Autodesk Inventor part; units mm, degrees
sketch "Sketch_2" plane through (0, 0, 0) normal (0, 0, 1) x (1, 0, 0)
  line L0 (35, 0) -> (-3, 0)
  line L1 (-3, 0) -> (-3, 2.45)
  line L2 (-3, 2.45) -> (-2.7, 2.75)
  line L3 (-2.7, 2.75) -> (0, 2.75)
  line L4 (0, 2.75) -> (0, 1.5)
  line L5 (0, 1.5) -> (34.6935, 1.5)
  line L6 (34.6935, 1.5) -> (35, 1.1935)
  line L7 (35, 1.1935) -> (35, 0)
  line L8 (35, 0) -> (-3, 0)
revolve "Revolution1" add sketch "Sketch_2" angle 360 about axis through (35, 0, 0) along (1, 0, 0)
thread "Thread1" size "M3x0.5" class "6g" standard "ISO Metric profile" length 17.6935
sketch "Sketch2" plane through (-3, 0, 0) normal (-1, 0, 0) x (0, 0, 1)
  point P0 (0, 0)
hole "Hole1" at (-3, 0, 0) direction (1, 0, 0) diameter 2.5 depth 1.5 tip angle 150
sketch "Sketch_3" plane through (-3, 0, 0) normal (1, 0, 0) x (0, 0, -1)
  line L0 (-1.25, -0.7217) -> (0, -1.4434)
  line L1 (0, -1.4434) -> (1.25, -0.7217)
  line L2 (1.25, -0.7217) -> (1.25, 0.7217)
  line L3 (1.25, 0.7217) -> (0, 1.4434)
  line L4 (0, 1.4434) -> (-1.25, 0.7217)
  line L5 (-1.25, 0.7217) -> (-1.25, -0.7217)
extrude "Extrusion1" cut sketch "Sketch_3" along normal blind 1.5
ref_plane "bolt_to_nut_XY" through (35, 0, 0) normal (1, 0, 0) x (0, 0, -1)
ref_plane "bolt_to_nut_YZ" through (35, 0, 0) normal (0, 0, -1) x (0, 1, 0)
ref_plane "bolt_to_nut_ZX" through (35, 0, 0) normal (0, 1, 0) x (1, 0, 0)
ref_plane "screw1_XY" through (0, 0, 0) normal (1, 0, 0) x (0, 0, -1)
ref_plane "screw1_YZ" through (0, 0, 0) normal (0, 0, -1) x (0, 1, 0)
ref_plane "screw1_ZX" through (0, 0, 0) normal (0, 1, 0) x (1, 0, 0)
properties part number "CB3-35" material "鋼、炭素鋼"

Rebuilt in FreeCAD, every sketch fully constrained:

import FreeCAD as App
import Part
import Sketcher

V = App.Vector
Q = App.Units.Quantity

doc = App.newDocument("Part")
body = doc.addObject("PartDesign::Body", "Body")

sketch1 = body.newObject("Sketcher::SketchObject", "Sketch")
sketch1.AttachmentSupport = (doc.getObject("XY_Plane"), [""])
sketch1.MapMode = "FlatFace"
sketch1.addGeometry([
    Part.LineSegment(V(-3, 0, 0), V(35, 0, 0)),
    Part.LineSegment(V(35, 0, 0), V(35, 1.19, 0)),
    Part.LineSegment(V(35, 1.19, 0), V(34.69, 1.5, 0)),
    Part.LineSegment(V(34.69, 1.5, 0), V(0, 1.5, 0)),
    Part.LineSegment(V(0, 1.5, 0), V(0, 2.75, 0)),
    Part.LineSegment(V(0, 2.75, 0), V(-2.7, 2.75, 0)),
    Part.LineSegment(V(-2.7, 2.75, 0), V(-3, 2.45, 0)),
    Part.LineSegment(V(-3, 2.45, 0), V(-3, 0, 0)),
], False)
sketch1.addConstraint([
    Sketcher.Constraint("Coincident", 0, 2, 1, 1),
    Sketcher.Constraint("Coincident", 1, 2, 2, 1),
    Sketcher.Constraint("Coincident", 2, 2, 3, 1),
    Sketcher.Constraint("Coincident", 3, 2, 4, 1),
    Sketcher.Constraint("Coincident", 4, 2, 5, 1),
    Sketcher.Constraint("Coincident", 5, 2, 6, 1),
    Sketcher.Constraint("Coincident", 6, 2, 7, 1),
    Sketcher.Constraint("Coincident", 7, 2, 0, 1),
    Sketcher.Constraint("Horizontal", 0),
    Sketcher.Constraint("Vertical", 1),
    Sketcher.Constraint("Horizontal", 3),
    Sketcher.Constraint("Vertical", 4),
    Sketcher.Constraint("Horizontal", 5),
    Sketcher.Constraint("Vertical", 7),
    Sketcher.Constraint("PointOnObject", 0, 2, -1),
    Sketcher.Constraint("PointOnObject", 3, 2, -2),
    Sketcher.Constraint("Perpendicular", 2, 6),
    Sketcher.Constraint("DistanceX", 0, 1, 0, 2, Q("38 mm")),
    Sketcher.Constraint("Angle", 2, Q("135 deg")),
    Sketcher.Constraint("DistanceX", 5, 2, 5, 1, Q("2.7 mm")),
    Sketcher.Constraint("DistanceX", -1, 1, 0, 2, Q("35 mm")),
    Sketcher.Constraint("DistanceY", 4, 1, 4, 2, Q("1.25 mm")),
    Sketcher.Constraint("DistanceY", 7, 2, 7, 1, Q("2.45 mm")),
    Sketcher.Constraint("DistanceX", 3, 2, 3, 1, Q("34.6935 mm")),
])
revolution = body.newObject("PartDesign::Revolution", "Revolution")
revolution.Profile = sketch1
revolution.ReferenceAxis = (sketch1, ["H_Axis"])
revolution.Angle = 360

sketch2 = body.newObject("Sketcher::SketchObject", "Sketch001")
sketch2.AttachmentSupport = (doc.getObject("YZ_Plane"), [""])
sketch2.MapMode = "FlatFace"
sketch2.AttachmentOffset = App.Placement(V(0, 0, -3), App.Rotation())
sketch2.addGeometry(Part.Circle(V(0, 0, 0), V(0, 0, 1), 1.2), False)
sketch2.addConstraint([
    Sketcher.Constraint("Coincident", 0, 3, -1, 1),
    Sketcher.Constraint("Diameter", 0, Q("2.5 mm")),
])
doc.recompute()
hole = body.newObject("PartDesign::Hole", "Hole")
hole.Profile = sketch2
hole.ThreadType = "None"
hole.Diameter = 2.5
hole.DepthType = "Dimension"
hole.Depth = 1.5
hole.DrillPoint = "Angled"
hole.DrillPointAngle = 150
hole.Reversed = True

sketch3 = body.newObject("Sketcher::SketchObject", "Sketch002")
sketch3.AttachmentSupport = (doc.getObject("YZ_Plane"), [""])
sketch3.MapMode = "FlatFace"
sketch3.AttachmentOffset = App.Placement(V(0, 0, -3), App.Rotation())
sketch3.addGeometry([
    Part.LineSegment(V(0.7, 1.2, 0), V(-0.7, 1.2, 0)),
    Part.LineSegment(V(-0.7, 1.2, 0), V(-1.4, 0, 0)),
    Part.LineSegment(V(-1.4, 0, 0), V(-0.7, -1.2, 0)),
    Part.LineSegment(V(-0.7, -1.2, 0), V(0.7, -1.2, 0)),
    Part.LineSegment(V(0.7, -1.2, 0), V(1.4, 0, 0)),
    Part.LineSegment(V(1.4, 0, 0), V(0.7, 1.2, 0)),
], False)
sketch3.addConstraint([
    Sketcher.Constraint("Coincident", 0, 2, 1, 1),
    Sketcher.Constraint("Coincident", 1, 2, 2, 1),
    Sketcher.Constraint("Coincident", 2, 2, 3, 1),
    Sketcher.Constraint("Coincident", 3, 2, 4, 1),
    Sketcher.Constraint("Coincident", 4, 2, 5, 1),
    Sketcher.Constraint("Coincident", 5, 2, 0, 1),
    Sketcher.Constraint("Horizontal", 0),
    Sketcher.Constraint("Horizontal", 3),
    Sketcher.Constraint("Symmetric", 0, 2, 3, 2, -1, 1),
    Sketcher.Constraint("Symmetric", 1, 2, 4, 2, -1, 1),
    Sketcher.Constraint("PointOnObject", 1, 2, -1),
    Sketcher.Constraint("Parallel", 2, 5),
    Sketcher.Constraint("Vertical", 0, 2, 2, 2),
    Sketcher.Constraint("Angle", 1, Q("-120.0004 deg")),
    Sketcher.Constraint("DistanceY", 2, 2, 0, 2, Q("2.5 mm")),
    Sketcher.Constraint("DistanceX", 0, 2, 0, 1, Q("1.4434 mm")),
])
pocket1 = body.newObject("PartDesign::Pocket", "Pocket")
pocket1.Profile = sketch3
pocket1.Length = 1.5
pocket1.Reversed = True

doc.recompute()
